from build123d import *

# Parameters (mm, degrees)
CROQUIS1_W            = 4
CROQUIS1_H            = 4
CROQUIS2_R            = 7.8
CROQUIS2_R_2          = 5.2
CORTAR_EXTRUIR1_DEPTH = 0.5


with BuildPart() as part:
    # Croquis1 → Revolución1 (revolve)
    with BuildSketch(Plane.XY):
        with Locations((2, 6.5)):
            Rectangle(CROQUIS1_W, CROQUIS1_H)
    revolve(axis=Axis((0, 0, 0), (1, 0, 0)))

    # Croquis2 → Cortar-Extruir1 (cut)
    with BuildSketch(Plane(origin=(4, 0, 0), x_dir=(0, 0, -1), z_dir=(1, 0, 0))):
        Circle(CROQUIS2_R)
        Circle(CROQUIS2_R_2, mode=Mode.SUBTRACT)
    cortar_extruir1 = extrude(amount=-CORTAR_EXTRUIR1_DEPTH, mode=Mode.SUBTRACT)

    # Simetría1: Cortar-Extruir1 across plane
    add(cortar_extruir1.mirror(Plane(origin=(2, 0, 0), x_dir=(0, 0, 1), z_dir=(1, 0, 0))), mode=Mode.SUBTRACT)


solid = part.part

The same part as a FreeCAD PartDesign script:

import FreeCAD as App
import Part
import Sketcher
Q = App.Units.Quantity


def add_polygon(sketch, points):
    """Adds a closed chain of lines whose ends are joined by coincident constraints."""
    first, n = sketch.GeometryCount, len(points)
    for a, b in zip(points, points[1:] + points[:1]):
        sketch.addGeometry(Part.LineSegment(App.Vector(*a, 0), App.Vector(*b, 0)), False)
    for i in range(n):
        sketch.addConstraint(Sketcher.Constraint("Coincident", first + i, 2, first + (i + 1) % n, 1))

doc = App.newDocument("Part")
body = doc.addObject("PartDesign::Body", "Body")

sketch1 = body.newObject("Sketcher::SketchObject", "Sketch")
sketch1.AttachmentSupport = (doc.getObject("XY_Plane"), [""])
sketch1.MapMode = "FlatFace"
add_polygon(sketch1, [(0, 8.5), (0, 4.5), (4, 4.5), (4, 8.5)])
sketch1.addConstraint([
    Sketcher.Constraint("Vertical", 0),
    Sketcher.Constraint("Horizontal", 1),
    Sketcher.Constraint("Vertical", 2),
    Sketcher.Constraint("Horizontal", 3),
    Sketcher.Constraint("PointOnObject", 0, 2, -2),
    Sketcher.Constraint("Equal", 3, 0),
    Sketcher.Constraint("DistanceX", 1, 1, 1, 2, Q("4 mm")),
    Sketcher.Constraint("DistanceY", -1, 1, 0, 2, Q("4.5 mm")),
])
revolution = body.newObject("PartDesign::Revolution", "Revolution")
revolution.Profile = sketch1
revolution.ReferenceAxis = (sketch1, ["H_Axis"])
revolution.Angle = 360

sketch2 = body.newObject("Sketcher::SketchObject", "Sketch001")
sketch2.AttachmentSupport = (doc.getObject("YZ_Plane"), [""])
sketch2.MapMode = "FlatFace"
sketch2.AttachmentOffset = App.Placement(App.Vector(0, 0, 4), App.Rotation())
sketch2.addGeometry([
    Part.Circle(App.Vector(0, 0, 0), App.Vector(0, 0, 1), 8),
    Part.Circle(App.Vector(0, 0, 0), App.Vector(0, 0, 1), 5),
], False)
sketch2.addConstraint([
    Sketcher.Constraint("Coincident", 0, 3, -1, 1),
    Sketcher.Constraint("Coincident", 1, 3, -1, 1),
    Sketcher.Constraint("Diameter", 0, Q("15.6 mm")),
    Sketcher.Constraint("Diameter", 1, Q("10.4 mm")),
])
pocket1 = body.newObject("PartDesign::Pocket", "Pocket")
pocket1.Profile = sketch2
pocket1.Length = 0.5
doc.recompute()

datumplane = body.newObject("PartDesign::Plane", "DatumPlane")
datumplane.AttachmentSupport = (doc.getObject("YZ_Plane"), [""])
datumplane.MapMode = "FlatFace"
datumplane.AttachmentOffset = App.Placement(App.Vector(0, 0, 2), App.Rotation())
mirrored = body.newObject("PartDesign::Mirrored", "Mirrored")
mirrored.Originals = [pocket1]
mirrored.MirrorPlane = (datumplane, [""])
body.Tip = mirrored

doc.recompute()
